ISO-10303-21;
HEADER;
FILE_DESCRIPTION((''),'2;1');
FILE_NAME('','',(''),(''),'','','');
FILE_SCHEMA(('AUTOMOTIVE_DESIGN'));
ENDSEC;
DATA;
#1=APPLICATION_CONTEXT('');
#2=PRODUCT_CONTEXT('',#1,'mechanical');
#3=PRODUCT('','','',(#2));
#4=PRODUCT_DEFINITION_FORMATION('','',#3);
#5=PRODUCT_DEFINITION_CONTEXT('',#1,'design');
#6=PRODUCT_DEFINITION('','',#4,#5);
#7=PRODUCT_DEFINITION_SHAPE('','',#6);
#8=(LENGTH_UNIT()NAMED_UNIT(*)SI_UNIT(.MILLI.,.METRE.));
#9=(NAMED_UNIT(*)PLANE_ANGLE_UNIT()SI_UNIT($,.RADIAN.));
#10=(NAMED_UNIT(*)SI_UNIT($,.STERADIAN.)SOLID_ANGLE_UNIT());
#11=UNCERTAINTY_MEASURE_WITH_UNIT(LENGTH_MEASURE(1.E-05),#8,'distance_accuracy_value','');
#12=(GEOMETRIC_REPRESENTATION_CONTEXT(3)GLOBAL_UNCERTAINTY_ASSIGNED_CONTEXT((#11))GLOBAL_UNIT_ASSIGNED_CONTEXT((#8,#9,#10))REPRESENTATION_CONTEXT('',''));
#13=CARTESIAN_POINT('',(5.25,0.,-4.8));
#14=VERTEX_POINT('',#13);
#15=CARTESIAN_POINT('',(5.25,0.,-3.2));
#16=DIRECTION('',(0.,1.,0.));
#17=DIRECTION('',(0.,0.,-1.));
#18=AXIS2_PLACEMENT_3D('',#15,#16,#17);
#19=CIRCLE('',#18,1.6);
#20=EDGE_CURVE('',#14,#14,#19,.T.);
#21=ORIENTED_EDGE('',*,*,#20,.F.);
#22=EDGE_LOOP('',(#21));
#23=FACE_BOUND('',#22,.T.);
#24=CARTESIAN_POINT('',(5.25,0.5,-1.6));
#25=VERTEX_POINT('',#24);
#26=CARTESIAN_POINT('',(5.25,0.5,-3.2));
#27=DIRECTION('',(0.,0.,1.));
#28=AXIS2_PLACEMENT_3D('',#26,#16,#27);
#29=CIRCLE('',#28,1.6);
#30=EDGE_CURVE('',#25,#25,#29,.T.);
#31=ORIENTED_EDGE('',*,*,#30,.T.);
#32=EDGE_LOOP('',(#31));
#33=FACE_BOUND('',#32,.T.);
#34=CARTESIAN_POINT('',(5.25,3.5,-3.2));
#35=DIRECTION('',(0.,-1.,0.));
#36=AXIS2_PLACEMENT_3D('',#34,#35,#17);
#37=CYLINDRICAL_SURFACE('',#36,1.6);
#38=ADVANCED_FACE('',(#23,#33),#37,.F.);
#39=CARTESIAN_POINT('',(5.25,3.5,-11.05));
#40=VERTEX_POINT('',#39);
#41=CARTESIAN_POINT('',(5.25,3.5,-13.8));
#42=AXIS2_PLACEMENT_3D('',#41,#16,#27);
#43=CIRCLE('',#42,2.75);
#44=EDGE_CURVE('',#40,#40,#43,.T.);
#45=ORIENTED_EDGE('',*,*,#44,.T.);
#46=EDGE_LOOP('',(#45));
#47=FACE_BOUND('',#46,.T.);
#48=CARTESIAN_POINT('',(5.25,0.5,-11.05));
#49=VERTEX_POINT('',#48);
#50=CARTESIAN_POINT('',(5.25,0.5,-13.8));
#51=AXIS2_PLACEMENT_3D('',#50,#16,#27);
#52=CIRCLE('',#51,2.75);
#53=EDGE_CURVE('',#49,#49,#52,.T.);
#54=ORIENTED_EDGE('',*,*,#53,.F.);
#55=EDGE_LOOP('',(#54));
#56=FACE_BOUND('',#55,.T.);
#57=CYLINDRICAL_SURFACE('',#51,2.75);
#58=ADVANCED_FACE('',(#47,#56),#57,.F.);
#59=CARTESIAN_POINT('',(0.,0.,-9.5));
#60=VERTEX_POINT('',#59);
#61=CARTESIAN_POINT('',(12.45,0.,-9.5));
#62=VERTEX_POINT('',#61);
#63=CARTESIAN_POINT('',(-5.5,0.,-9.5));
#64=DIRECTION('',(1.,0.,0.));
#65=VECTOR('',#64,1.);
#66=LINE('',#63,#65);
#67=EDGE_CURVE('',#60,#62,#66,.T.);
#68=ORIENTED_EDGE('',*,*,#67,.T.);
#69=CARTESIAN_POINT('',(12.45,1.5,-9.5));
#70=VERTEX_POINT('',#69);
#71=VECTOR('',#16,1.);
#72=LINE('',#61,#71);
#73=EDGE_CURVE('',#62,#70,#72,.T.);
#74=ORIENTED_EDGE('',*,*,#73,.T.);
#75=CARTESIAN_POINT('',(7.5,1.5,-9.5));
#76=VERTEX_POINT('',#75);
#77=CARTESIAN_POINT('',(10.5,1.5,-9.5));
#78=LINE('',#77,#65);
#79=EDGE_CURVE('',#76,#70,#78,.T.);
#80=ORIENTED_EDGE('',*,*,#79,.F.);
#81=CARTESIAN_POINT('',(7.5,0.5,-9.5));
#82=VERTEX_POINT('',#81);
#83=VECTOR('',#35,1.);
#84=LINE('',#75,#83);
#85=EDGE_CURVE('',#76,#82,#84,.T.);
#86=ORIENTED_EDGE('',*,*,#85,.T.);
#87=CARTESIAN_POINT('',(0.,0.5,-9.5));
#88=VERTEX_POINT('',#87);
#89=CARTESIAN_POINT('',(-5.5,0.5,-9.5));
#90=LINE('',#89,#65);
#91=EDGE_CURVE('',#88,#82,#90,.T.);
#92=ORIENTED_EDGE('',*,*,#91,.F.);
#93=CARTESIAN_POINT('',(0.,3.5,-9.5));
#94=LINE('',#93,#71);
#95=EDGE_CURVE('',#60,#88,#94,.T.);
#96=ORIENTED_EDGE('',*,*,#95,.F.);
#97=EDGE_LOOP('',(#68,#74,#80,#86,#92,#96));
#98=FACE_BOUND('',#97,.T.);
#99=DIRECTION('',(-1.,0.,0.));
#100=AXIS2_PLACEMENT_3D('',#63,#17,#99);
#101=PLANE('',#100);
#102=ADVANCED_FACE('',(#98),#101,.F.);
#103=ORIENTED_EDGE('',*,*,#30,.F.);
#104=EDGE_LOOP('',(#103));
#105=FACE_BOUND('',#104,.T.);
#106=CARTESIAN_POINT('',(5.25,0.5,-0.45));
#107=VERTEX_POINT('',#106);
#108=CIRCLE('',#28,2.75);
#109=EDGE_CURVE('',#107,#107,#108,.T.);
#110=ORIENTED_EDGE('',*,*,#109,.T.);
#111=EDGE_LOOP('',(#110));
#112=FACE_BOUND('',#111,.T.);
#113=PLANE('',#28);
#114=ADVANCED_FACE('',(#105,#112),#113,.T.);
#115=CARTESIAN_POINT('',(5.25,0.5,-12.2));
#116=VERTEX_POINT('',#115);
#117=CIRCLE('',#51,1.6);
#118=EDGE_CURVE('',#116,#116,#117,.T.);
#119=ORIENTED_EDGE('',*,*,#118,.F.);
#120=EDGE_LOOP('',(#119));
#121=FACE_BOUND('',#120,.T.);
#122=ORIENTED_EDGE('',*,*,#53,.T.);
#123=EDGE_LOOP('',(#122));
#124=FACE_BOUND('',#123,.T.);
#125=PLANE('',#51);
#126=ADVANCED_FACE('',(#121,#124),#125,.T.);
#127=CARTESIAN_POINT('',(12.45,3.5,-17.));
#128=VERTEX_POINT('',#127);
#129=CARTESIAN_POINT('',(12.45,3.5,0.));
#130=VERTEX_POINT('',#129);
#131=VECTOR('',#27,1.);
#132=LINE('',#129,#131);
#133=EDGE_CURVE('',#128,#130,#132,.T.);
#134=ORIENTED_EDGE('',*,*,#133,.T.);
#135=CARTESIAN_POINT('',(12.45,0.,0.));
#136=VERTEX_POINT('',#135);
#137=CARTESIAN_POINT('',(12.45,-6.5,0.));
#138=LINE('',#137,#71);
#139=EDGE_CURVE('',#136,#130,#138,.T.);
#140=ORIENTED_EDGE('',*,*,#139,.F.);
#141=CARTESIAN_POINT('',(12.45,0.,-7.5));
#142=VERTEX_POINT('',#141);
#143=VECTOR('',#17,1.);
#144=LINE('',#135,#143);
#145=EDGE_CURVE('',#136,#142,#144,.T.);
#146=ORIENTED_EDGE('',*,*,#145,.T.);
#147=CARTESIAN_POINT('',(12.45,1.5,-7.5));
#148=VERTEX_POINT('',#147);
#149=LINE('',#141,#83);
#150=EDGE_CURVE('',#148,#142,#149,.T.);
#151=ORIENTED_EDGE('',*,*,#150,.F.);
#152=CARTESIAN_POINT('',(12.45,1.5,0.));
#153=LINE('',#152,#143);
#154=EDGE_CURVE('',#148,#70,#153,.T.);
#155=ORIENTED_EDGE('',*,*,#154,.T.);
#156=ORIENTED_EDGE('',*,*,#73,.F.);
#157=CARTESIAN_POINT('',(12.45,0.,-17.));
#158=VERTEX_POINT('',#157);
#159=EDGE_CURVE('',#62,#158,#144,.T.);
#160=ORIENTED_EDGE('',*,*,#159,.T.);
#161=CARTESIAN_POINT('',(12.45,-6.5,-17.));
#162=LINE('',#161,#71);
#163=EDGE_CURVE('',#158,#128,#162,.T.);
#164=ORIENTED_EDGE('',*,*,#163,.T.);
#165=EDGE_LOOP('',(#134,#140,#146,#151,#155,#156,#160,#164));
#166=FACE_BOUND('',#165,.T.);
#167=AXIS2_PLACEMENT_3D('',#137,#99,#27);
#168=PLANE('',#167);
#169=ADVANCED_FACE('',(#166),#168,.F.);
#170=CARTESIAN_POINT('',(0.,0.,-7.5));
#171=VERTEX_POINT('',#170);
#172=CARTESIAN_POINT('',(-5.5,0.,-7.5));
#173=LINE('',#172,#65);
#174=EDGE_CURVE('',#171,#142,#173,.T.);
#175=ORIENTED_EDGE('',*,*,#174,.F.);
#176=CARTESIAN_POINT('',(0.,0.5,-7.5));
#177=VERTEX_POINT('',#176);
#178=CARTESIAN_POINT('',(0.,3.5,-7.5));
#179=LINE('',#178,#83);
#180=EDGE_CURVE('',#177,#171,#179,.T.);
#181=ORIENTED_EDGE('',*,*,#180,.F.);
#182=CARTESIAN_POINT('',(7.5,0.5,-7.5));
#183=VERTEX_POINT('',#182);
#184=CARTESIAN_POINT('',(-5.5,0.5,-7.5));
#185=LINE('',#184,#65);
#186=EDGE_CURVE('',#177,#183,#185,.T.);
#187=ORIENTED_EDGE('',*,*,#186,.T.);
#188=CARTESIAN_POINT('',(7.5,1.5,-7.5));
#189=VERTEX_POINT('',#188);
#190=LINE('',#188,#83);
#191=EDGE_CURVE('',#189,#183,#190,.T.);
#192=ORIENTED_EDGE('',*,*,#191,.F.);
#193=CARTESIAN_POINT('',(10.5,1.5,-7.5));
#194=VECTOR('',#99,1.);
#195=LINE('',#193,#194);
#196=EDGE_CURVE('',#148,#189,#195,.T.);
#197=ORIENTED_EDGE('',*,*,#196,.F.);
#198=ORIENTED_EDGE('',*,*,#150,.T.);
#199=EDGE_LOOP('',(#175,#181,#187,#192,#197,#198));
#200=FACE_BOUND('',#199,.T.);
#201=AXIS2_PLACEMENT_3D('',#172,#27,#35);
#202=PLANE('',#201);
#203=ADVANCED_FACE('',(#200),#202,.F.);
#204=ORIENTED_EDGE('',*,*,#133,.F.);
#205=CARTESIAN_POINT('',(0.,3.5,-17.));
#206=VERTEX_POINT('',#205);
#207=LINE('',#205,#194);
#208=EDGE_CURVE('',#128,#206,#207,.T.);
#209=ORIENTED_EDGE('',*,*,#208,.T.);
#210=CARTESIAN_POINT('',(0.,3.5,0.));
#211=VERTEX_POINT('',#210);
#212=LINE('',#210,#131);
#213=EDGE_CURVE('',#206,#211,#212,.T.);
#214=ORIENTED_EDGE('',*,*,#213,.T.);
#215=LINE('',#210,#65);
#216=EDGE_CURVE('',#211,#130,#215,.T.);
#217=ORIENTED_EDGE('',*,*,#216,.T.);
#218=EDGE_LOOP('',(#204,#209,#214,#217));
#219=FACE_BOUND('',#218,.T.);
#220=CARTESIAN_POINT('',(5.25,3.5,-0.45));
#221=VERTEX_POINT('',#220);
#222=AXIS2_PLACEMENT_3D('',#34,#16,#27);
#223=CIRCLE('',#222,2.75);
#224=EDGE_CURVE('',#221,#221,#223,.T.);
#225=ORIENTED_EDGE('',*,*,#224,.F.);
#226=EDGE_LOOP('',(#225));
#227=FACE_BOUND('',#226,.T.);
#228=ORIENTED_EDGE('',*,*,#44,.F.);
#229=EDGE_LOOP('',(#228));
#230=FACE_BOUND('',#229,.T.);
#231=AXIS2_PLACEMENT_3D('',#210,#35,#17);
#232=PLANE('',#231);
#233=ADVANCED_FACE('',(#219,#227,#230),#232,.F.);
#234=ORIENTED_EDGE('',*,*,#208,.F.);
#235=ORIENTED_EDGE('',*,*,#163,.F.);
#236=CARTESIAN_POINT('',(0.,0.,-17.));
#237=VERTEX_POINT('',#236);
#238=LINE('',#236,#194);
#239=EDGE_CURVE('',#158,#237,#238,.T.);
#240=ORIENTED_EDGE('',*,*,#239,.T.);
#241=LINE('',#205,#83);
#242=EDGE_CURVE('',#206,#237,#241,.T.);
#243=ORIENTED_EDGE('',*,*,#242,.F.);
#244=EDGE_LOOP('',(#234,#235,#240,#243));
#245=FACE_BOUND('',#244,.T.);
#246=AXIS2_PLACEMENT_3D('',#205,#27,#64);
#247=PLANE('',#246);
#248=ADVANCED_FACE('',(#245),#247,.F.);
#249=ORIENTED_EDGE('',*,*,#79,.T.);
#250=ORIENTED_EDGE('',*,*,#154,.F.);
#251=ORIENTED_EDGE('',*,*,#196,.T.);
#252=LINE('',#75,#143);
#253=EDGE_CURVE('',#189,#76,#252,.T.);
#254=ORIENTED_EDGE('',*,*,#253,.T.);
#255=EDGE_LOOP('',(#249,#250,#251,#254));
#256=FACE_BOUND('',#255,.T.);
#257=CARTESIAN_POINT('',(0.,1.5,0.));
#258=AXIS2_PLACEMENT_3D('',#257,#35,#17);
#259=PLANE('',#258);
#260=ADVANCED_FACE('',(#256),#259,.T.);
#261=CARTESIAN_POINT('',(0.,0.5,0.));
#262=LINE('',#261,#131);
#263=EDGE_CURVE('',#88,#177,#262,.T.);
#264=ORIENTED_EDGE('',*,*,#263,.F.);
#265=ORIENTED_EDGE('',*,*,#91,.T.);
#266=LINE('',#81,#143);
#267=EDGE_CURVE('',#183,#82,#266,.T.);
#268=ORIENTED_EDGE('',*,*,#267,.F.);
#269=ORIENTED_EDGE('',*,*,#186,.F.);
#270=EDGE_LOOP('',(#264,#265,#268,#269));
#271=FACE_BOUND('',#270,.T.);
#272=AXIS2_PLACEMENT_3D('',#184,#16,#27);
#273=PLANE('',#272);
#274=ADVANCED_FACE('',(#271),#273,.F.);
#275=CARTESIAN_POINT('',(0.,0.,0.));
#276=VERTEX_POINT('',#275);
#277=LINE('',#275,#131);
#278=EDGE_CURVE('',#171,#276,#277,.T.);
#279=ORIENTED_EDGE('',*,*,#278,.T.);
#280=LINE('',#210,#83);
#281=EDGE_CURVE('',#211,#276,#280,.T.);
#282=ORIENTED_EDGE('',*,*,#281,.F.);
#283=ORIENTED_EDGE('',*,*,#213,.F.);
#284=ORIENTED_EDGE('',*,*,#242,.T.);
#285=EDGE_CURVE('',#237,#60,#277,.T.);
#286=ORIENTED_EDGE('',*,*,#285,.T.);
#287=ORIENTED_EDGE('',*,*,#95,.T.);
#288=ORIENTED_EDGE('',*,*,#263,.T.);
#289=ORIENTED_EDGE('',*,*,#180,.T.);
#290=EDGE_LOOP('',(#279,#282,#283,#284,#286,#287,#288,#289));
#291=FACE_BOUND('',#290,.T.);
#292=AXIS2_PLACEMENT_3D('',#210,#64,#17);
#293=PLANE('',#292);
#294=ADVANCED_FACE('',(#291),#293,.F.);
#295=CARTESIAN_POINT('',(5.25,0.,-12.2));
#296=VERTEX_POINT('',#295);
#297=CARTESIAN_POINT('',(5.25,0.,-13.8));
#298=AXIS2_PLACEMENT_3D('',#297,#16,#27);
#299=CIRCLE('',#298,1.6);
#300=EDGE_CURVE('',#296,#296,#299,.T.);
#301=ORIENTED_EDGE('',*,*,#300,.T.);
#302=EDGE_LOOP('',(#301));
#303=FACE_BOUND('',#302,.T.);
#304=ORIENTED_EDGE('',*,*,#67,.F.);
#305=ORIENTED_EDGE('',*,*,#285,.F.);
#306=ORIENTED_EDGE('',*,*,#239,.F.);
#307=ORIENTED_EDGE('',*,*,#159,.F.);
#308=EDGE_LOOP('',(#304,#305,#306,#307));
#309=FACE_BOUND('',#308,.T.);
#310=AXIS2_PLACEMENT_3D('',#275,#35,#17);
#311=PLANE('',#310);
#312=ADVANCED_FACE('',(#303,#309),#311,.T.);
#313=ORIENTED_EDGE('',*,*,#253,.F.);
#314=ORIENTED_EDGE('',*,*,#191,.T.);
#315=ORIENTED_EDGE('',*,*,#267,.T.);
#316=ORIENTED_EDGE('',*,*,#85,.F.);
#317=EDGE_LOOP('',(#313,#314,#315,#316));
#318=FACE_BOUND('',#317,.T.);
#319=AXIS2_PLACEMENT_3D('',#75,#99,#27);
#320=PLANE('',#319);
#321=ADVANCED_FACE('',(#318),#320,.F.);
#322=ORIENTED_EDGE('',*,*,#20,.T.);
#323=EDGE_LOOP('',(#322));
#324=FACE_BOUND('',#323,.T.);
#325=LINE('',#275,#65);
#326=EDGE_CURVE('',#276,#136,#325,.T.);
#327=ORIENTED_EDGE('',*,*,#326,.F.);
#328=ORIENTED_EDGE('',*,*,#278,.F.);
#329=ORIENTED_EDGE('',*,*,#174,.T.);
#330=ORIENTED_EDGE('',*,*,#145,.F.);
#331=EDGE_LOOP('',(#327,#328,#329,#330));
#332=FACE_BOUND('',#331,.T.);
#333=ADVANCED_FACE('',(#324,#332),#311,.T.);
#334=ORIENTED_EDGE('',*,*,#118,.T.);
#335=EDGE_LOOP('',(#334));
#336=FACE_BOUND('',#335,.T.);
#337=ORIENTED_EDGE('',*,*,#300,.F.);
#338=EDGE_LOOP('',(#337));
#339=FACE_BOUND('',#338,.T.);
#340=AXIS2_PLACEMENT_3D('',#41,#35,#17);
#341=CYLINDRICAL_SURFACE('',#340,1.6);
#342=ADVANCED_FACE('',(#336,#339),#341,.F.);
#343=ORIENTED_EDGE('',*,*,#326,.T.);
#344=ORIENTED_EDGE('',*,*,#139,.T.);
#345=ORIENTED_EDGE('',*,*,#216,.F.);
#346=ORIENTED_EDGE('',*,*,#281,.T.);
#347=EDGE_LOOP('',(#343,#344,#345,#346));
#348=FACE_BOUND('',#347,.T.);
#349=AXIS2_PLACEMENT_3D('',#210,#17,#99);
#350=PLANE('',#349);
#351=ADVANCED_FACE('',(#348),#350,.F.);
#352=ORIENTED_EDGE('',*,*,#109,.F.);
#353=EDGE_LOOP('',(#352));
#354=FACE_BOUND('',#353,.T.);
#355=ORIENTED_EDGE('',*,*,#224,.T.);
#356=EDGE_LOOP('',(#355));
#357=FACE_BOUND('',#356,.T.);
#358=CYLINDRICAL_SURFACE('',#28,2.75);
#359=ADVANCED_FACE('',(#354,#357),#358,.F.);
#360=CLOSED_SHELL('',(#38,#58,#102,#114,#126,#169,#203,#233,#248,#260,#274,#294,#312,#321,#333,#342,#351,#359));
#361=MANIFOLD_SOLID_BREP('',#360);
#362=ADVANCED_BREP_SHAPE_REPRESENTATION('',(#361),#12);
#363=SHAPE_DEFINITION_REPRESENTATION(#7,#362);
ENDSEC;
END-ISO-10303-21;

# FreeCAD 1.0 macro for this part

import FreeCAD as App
import Part
import Sketcher

V = App.Vector
Q = App.Units.Quantity

doc = App.newDocument("Part")
body = doc.addObject("PartDesign::Body", "Body")

# Sketch on XZ plane
sketch1 = body.newObject("Sketcher::SketchObject", "Sketch")
sketch1.AttachmentSupport = (doc.getObject("XZ_Plane"), [""])
sketch1.MapMode = "FlatFace"
sketch1.addGeometry([
    Part.LineSegment(V(0, -17, 0), V(0, 0, 0)),  # 0
    Part.LineSegment(V(0, 0, 0), V(10.5, 0, 0)),  # 1
    Part.LineSegment(V(10.5, 0, 0), V(10.5, -17, 0)),  # 2
    Part.LineSegment(V(10.5, -17, 0), V(0, -17, 0)),  # 3
    Part.Circle(V(5.25, -3.2, 0), V(0, 0, 1), 1.6),  # 4
    Part.Circle(V(5.25, -13.8, 0), V(0, 0, 1), 1.6),  # 5
], False)
sketch1.addConstraint([
    Sketcher.Constraint("Coincident", 0, 2, 1, 1),
    Sketcher.Constraint("Coincident", 1, 2, 2, 1),
    Sketcher.Constraint("Coincident", 2, 2, 3, 1),
    Sketcher.Constraint("Coincident", 3, 2, 0, 1),
    Sketcher.Constraint("Vertical", 0),
    Sketcher.Constraint("Horizontal", 1),
    Sketcher.Constraint("Vertical", 2),
    Sketcher.Constraint("Horizontal", 3),
    Sketcher.Constraint("Coincident", 0, 2, -1, 1),
    Sketcher.Constraint("Equal", 4, 5),
    Sketcher.Constraint("Vertical", 4, 3, 5, 3),
    Sketcher.Constraint("Diameter", 4, Q("3.2 mm")),
    Sketcher.Constraint("DistanceY", 0, 1, 0, 2, Q("17 mm")),
    Sketcher.Constraint("DistanceX", 1, 1, 1, 2, Q("10.5 mm")),
    Sketcher.Constraint("DistanceY", 4, 3, -1, 1, Q("3.2 mm")),
    Sketcher.Constraint("DistanceY", 5, 3, -1, 1, Q("13.8 mm")),
    Sketcher.Constraint("DistanceX", -1, 1, 4, 3, Q("5.25 mm")),
])
pad1 = body.newObject("PartDesign::Pad", "Pad")
pad1.Profile = sketch1
pad1.Length = 3.5
pad1.Reversed = True

# Sketch on XZ plane
sketch2 = body.newObject("Sketcher::SketchObject", "Sketch001")
sketch2.AttachmentSupport = (doc.getObject("XZ_Plane"), [""])
sketch2.MapMode = "FlatFace"
sketch2.AttachmentOffset = App.Placement(V(0, 0, -3.5), App.Rotation())
sketch2.addGeometry([
    Part.Circle(V(5.25, -13.8, 0), V(0, 0, 1), 2.75),
    Part.Circle(V(5.25, -3.2, 0), V(0, 0, 1), 2.75),
], False)
sketch2.addConstraint([
    Sketcher.Constraint("Equal", 0, 1),
    Sketcher.Constraint("Vertical", 0, 3, 1, 3),
    Sketcher.Constraint("Diameter", 0, Q("5.5 mm")),
    Sketcher.Constraint("DistanceY", 0, 3, -1, 1, Q("13.8 mm")),
    Sketcher.Constraint("DistanceY", 1, 3, -1, 1, Q("3.2 mm")),
    Sketcher.Constraint("DistanceX", -1, 1, 0, 3, Q("5.25 mm")),
])
pocket1 = body.newObject("PartDesign::Pocket", "Pocket")
pocket1.Profile = sketch2
pocket1.Length = 3
pocket1.Reversed = True

# Sketch on YZ plane
sketch3 = body.newObject("Sketcher::SketchObject", "Sketch002")
sketch3.AttachmentSupport = (doc.getObject("YZ_Plane"), [""])
sketch3.MapMode = "FlatFace"
sketch3.AttachmentOffset = App.Placement(V(0, 0, 10.5), App.Rotation())
sketch3.addGeometry([
    Part.LineSegment(V(0.5, -7.5, 0), V(0, -7.5, 0)),
    Part.LineSegment(V(0, -7.5, 0), V(0, -9.5, 0)),
    Part.LineSegment(V(0, -9.5, 0), V(0.5, -9.5, 0)),
    Part.LineSegment(V(0.5, -9.5, 0), V(0.5, -7.5, 0)),
], False)
sketch3.addConstraint([
    Sketcher.Constraint("Coincident", 0, 2, 1, 1),
    Sketcher.Constraint("Coincident", 1, 2, 2, 1),
    Sketcher.Constraint("Coincident", 2, 2, 3, 1),
    Sketcher.Constraint("Coincident", 3, 2, 0, 1),
    Sketcher.Constraint("Horizontal", 0),
    Sketcher.Constraint("Vertical", 1),
    Sketcher.Constraint("Horizontal", 2),
    Sketcher.Constraint("Vertical", 3),
    Sketcher.Constraint("PointOnObject", 0, 2, -2),
    Sketcher.Constraint("DistanceY", 1, 2, 1, 1, Q("2 mm")),
    Sketcher.Constraint("DistanceX", 0, 2, 0, 1, Q("0.5 mm")),
    Sketcher.Constraint("DistanceY", 0, 2, -1, 1, Q("7.5 mm")),
])
pocket2 = body.newObject("PartDesign::Pocket", "Pocket001")
pocket2.Profile = sketch3
pocket2.Length = 16

# Sketch on XZ plane
sketch4 = body.newObject("Sketcher::SketchObject", "Sketch003")
sketch4.AttachmentSupport = (doc.getObject("XZ_Plane"), [""])
sketch4.MapMode = "FlatFace"
sketch4.AttachmentOffset = App.Placement(V(0, 0, -0.5), App.Rotation())
sketch4.addGeometry([
    Part.LineSegment(V(7.5, -7.5, 0), V(7.5, -9.5, 0)),
    Part.LineSegment(V(7.5, -9.5, 0), V(10.5, -9.5, 0)),
    Part.LineSegment(V(10.5, -9.5, 0), V(10.5, -7.5, 0)),
    Part.LineSegment(V(10.5, -7.5, 0), V(7.5, -7.5, 0)),
], False)
sketch4.addConstraint([
    Sketcher.Constraint("Coincident", 0, 2, 1, 1),
    Sketcher.Constraint("Coincident", 1, 2, 2, 1),
    Sketcher.Constraint("Coincident", 2, 2, 3, 1),
    Sketcher.Constraint("Coincident", 3, 2, 0, 1),
    Sketcher.Constraint("Vertical", 0),
    Sketcher.Constraint("Horizontal", 1),
    Sketcher.Constraint("Vertical", 2),
    Sketcher.Constraint("Horizontal", 3),
    Sketcher.Constraint("DistanceX", 1, 1, 1, 2, Q("3 mm")),
    Sketcher.Constraint("DistanceY", 0, 2, 0, 1, Q("2 mm")),
    Sketcher.Constraint("DistanceX", -1, 1, 0, 2, Q("7.5 mm")),
    Sketcher.Constraint("DistanceY", 0, 2, -1, 1, Q("9.5 mm")),
])
pocket3 = body.newObject("PartDesign::Pocket", "Pocket002")
pocket3.Profile = sketch4
pocket3.Length = 1

# Sketch on YZ plane
sketch5 = body.newObject("Sketcher::SketchObject", "Sketch004")
sketch5.AttachmentSupport = (doc.getObject("YZ_Plane"), [""])
sketch5.MapMode = "FlatFace"
sketch5.AttachmentOffset = App.Placement(V(0, 0, 10.5), App.Rotation())
sketch5.addGeometry([
    Part.LineSegment(V(1.5, -7.5, 0), V(1.5, -9.5, 0)),  # 0
    Part.LineSegment(V(1.5, -9.5, 0), V(0, -9.5, 0)),  # 1
    Part.LineSegment(V(0, -9.5, 0), V(0, -17, 0)),  # 2
    Part.LineSegment(V(0, -17, 0), V(3.5, -17, 0)),  # 3
    Part.LineSegment(V(3.5, -17, 0), V(3.5, 0, 0)),  # 4
    Part.LineSegment(V(3.5, 0, 0), V(0, 0, 0)),  # 5
    Part.LineSegment(V(0, 0, 0), V(0, -7.5, 0)),  # 6
    Part.LineSegment(V(0, -7.5, 0), V(1.5, -7.5, 0)),  # 7
], False)
sketch5.addConstraint([
    Sketcher.Constraint("Coincident", 0, 2, 1, 1),
    Sketcher.Constraint("Coincident", 1, 2, 2, 1),
    Sketcher.Constraint("Coincident", 2, 2, 3, 1),
    Sketcher.Constraint("Coincident", 3, 2, 4, 1),
    Sketcher.Constraint("Coincident", 4, 2, 5, 1),
    Sketcher.Constraint("Coincident", 5, 2, 6, 1),
    Sketcher.Constraint("Coincident", 6, 2, 7, 1),
    Sketcher.Constraint("Coincident", 7, 2, 0, 1),
    Sketcher.Constraint("Vertical", 0),
    Sketcher.Constraint("Horizontal", 1),
    Sketcher.Constraint("Vertical", 2),
    Sketcher.Constraint("Horizontal", 3),
    Sketcher.Constraint("Vertical", 4),
    Sketcher.Constraint("Horizontal", 5),
    Sketcher.Constraint("Vertical", 6),
    Sketcher.Constraint("Horizontal", 7),
    Sketcher.Constraint("Coincident", 5, 2, -1, 1),
    Sketcher.Constraint("PointOnObject", 1, 2, -2),
    Sketcher.Constraint("Equal", 2, 6),
    Sketcher.Constraint("DistanceY", 0, 2, 0, 1, Q("2 mm")),
    Sketcher.Constraint("DistanceY", 4, 1, 4, 2, Q("17 mm")),
    Sketcher.Constraint("DistanceX", 1, 2, 1, 1, Q("1.5 mm")),
    Sketcher.Constraint("DistanceX", 3, 1, 3, 2, Q("3.5 mm")),
])
pad2 = body.newObject("PartDesign::Pad", "Pad001")
pad2.Profile = sketch5
pad2.Length = 10

# Sketch on XZ plane
sketch6 = body.newObject("Sketcher::SketchObject", "Sketch005")
sketch6.AttachmentSupport = (doc.getObject("XZ_Plane"), [""])
sketch6.MapMode = "FlatFace"
sketch6.AttachmentOffset = App.Placement(V(0, 0, -3.5), App.Rotation())
sketch6.addGeometry([
    Part.LineSegment(V(12.45, -17, 0), V(12.45, 0, 0)),
    Part.LineSegment(V(12.45, 0, 0), V(20.5, 0, 0)),
    Part.LineSegment(V(20.5, 0, 0), V(20.5, -17, 0)),
    Part.LineSegment(V(20.5, -17, 0), V(12.45, -17, 0)),
], False)
sketch6.addConstraint([
    Sketcher.Constraint("Coincident", 0, 2, 1, 1),
    Sketcher.Constraint("Coincident", 1, 2, 2, 1),
    Sketcher.Constraint("Coincident", 2, 2, 3, 1),
    Sketcher.Constraint("Coincident", 3, 2, 0, 1),
    Sketcher.Constraint("Vertical", 0),
    Sketcher.Constraint("Horizontal", 1),
    Sketcher.Constraint("Vertical", 2),
    Sketcher.Constraint("Horizontal", 3),
    Sketcher.Constraint("PointOnObject", 0, 2, -1),
    Sketcher.Constraint("DistanceY", 0, 1, 0, 2, Q("17 mm")),
    Sketcher.Constraint("DistanceX", 1, 1, 1, 2, Q("8.05 mm")),
    Sketcher.Constraint("DistanceX", -1, 1, 1, 2, Q("20.5 mm")),
])
pocket4 = body.newObject("PartDesign::Pocket", "Pocket003")
pocket4.Profile = sketch6
pocket4.Length = 10
pocket4.Reversed = True

doc.recompute()
